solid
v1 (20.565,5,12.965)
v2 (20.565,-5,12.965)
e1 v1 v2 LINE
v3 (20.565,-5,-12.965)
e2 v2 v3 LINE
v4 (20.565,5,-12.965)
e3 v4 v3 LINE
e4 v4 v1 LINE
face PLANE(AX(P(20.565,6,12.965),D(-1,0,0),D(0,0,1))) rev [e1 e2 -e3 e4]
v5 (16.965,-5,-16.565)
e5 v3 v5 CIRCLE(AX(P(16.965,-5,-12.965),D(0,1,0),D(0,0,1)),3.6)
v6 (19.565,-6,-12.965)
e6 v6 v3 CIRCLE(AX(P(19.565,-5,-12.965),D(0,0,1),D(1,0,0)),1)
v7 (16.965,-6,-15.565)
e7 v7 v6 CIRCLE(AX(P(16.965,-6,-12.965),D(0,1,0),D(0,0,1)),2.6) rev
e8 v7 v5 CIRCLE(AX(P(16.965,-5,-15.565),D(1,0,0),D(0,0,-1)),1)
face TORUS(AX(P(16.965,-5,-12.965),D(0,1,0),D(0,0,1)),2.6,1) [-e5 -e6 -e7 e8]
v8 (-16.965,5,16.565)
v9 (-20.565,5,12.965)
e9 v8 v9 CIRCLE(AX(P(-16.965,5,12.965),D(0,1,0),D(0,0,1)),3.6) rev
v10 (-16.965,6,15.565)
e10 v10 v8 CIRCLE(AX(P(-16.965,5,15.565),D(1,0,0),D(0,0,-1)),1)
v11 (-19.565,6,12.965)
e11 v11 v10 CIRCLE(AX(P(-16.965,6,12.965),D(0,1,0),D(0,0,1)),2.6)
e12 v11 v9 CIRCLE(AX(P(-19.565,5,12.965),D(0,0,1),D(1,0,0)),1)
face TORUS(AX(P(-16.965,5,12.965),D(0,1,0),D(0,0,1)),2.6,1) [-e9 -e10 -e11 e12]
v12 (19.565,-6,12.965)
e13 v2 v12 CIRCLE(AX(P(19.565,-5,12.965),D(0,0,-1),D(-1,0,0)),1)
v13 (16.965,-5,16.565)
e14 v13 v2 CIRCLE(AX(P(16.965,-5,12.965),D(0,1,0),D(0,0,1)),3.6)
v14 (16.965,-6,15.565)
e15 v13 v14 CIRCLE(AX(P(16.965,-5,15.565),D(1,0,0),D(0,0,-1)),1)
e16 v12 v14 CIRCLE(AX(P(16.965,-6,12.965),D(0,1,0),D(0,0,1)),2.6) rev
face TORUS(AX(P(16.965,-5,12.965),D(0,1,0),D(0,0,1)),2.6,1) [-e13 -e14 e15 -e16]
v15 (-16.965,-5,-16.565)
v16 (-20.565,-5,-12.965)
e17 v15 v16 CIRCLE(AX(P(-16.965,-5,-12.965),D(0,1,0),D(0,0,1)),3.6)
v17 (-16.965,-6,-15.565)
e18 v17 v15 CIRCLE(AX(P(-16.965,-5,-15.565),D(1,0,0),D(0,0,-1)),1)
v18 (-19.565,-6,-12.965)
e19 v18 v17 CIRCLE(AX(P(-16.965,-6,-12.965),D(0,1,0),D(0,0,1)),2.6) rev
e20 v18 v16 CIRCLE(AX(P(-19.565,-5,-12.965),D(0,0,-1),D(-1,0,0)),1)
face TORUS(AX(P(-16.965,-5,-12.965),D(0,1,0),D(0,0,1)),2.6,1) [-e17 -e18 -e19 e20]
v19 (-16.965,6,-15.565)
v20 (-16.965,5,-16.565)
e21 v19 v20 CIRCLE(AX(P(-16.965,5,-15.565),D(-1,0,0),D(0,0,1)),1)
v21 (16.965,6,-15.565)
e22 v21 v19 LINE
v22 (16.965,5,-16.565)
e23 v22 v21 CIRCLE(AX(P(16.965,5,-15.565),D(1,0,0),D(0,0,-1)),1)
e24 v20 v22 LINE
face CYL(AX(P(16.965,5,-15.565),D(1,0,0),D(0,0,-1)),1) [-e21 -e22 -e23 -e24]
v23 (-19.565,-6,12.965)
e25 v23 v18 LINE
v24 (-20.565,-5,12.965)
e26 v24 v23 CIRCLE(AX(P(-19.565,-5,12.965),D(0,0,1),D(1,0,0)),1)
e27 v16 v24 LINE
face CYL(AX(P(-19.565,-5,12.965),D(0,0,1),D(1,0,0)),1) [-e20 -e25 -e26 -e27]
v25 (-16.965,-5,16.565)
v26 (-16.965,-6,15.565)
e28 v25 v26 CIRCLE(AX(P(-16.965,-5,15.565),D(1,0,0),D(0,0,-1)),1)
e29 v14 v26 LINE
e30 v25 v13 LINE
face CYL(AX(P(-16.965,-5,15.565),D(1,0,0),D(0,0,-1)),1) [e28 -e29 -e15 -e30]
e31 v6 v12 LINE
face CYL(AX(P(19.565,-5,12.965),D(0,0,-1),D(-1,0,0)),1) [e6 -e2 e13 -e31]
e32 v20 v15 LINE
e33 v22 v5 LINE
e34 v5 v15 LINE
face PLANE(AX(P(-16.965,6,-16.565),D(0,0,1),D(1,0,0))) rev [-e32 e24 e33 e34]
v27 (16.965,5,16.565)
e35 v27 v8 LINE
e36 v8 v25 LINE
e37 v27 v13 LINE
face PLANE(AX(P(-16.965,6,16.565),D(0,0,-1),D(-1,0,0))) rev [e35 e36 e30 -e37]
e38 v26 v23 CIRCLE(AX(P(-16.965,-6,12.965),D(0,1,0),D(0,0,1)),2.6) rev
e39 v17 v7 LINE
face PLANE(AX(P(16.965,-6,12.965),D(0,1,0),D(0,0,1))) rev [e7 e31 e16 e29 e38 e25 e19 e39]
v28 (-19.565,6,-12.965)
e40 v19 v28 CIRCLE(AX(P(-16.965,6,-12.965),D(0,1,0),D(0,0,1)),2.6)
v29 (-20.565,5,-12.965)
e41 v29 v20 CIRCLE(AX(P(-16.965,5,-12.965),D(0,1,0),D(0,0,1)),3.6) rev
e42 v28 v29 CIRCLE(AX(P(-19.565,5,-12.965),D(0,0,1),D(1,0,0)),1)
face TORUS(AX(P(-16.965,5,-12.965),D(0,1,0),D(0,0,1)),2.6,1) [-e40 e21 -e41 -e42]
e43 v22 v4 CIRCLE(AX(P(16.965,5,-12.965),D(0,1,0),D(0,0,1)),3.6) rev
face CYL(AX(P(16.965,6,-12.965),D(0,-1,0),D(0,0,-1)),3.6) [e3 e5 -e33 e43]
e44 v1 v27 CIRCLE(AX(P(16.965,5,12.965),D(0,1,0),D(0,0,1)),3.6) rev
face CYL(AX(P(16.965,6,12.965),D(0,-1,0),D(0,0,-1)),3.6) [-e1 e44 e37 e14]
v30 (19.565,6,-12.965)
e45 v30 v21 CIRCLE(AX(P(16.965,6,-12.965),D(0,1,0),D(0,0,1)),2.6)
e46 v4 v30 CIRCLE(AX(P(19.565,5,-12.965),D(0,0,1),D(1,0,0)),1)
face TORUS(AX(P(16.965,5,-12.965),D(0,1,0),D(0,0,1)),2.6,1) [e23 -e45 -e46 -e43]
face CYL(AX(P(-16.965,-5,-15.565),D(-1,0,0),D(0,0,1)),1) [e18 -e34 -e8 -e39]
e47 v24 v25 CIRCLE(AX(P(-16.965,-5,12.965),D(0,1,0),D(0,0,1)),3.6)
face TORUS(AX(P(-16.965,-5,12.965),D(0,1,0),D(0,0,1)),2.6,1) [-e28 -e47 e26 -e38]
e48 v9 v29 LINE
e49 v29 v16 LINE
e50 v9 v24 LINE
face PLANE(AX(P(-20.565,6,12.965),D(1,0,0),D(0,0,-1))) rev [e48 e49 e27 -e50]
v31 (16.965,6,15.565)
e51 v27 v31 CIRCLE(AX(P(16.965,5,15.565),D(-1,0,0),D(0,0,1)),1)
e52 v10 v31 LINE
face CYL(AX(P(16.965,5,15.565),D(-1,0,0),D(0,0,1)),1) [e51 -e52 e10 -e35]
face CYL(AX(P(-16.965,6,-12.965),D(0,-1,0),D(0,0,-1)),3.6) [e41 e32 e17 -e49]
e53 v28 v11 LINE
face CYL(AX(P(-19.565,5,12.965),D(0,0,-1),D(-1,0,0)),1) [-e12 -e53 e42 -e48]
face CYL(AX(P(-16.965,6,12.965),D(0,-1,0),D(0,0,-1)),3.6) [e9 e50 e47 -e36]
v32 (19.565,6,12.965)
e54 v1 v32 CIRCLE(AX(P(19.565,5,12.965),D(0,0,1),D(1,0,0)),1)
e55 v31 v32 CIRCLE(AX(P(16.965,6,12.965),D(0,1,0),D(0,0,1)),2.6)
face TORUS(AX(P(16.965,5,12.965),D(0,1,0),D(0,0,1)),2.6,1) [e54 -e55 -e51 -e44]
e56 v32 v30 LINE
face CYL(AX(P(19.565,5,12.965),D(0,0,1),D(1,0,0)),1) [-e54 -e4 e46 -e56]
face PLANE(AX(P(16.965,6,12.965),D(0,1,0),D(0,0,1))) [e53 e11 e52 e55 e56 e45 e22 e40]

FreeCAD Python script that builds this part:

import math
import FreeCAD as App
import Part
import Sketcher
Q = App.Units.Quantity


def edges_at(feature, points):
    """Names of the edges that pass closest to the given points."""
    edges = feature.Shape.Edges
    near = lambda p: min(range(len(edges)), key=lambda i: edges[i].distToShape(Part.Vertex(*p))[0])
    return sorted({f"Edge{near(p) + 1}" for p in points})

doc = App.newDocument("Part")
body = doc.addObject("PartDesign::Body", "Body")

# Sketch on XZ plane
sketch1 = body.newObject("Sketcher::SketchObject", "Sketch")
sketch1.AttachmentSupport = (doc.getObject("XZ_Plane"), [""])
sketch1.MapMode = "FlatFace"
sketch1.addGeometry([
    Part.LineSegment(App.Vector(-16.965, 16.565, 0), App.Vector(16.965, 16.565, 0)),  # 0
    Part.ArcOfCircle(Part.Circle(App.Vector(16.965, 12.965, 0), App.Vector(0, 0, 1), 3.6), math.radians(0), math.radians(90)),  # 1
    Part.LineSegment(App.Vector(20.565, 12.965, 0), App.Vector(20.565, -12.965, 0)),  # 2
    Part.ArcOfCircle(Part.Circle(App.Vector(16.965, -12.965, 0), App.Vector(0, 0, 1), 3.6), math.radians(-90), math.radians(0)),  # 3
    Part.LineSegment(App.Vector(16.965, -16.565, 0), App.Vector(-16.965, -16.565, 0)),  # 4
    Part.ArcOfCircle(Part.Circle(App.Vector(-16.965, -12.965, 0), App.Vector(0, 0, 1), 3.6), math.radians(-180), math.radians(-90)),  # 5
    Part.LineSegment(App.Vector(-20.565, -12.965, 0), App.Vector(-20.565, 12.965, 0)),  # 6
    Part.ArcOfCircle(Part.Circle(App.Vector(-16.965, 12.965, 0), App.Vector(0, 0, 1), 3.6), math.radians(90), math.radians(180)),  # 7
], False)
sketch1.addConstraint([
    Sketcher.Constraint("Tangent", 0, 2, 1, 2),
    Sketcher.Constraint("Tangent", 1, 1, 2, 1),
    Sketcher.Constraint("Tangent", 2, 2, 3, 2),
    Sketcher.Constraint("Tangent", 3, 1, 4, 1),
    Sketcher.Constraint("Tangent", 4, 2, 5, 2),
    Sketcher.Constraint("Tangent", 5, 1, 6, 1),
    Sketcher.Constraint("Tangent", 6, 2, 7, 2),
    Sketcher.Constraint("Tangent", 7, 1, 0, 1),
    Sketcher.Constraint("Horizontal", 0),
    Sketcher.Constraint("Vertical", 2),
    Sketcher.Constraint("Horizontal", 4),
    Sketcher.Constraint("Vertical", 6),
    Sketcher.Constraint("Equal", 1, 3),
    Sketcher.Constraint("Equal", 3, 5),
    Sketcher.Constraint("Equal", 5, 7),
    Sketcher.Constraint("Symmetric", 1, 3, 5, 3, -1, 1),
    Sketcher.Constraint("Radius", 1, Q("3.6 mm")),
    Sketcher.Constraint("DistanceX", 0, 1, 0, 2, Q("33.93 mm")),
    Sketcher.Constraint("DistanceY", 2, 2, 2, 1, Q("25.93 mm")),
])
pad1 = body.newObject("PartDesign::Pad", "Pad")
pad1.Profile = sketch1
pad1.Length = 12
pad1.Midplane = True
doc.recompute()

fillet = body.newObject("PartDesign::Fillet", "Fillet")
fillet.Base = (pad1, edges_at(pad1, [
    (0, -6, -16.565),
    (19.511, -6, -15.511),
    (20.565, -6, 0),
    (19.511, -6, 15.511),
    (19.511, 6, -15.511),
    (0, 6, -16.565),
    (-19.511, 6, -15.511),
    (-20.565, 6, 0),
    (-19.511, 6, 15.511),
    (0, 6, 16.565),
    (19.511, 6, 15.511),
    (0, -6, 16.565),
    (20.565, 6, 0),
    (-19.511, -6, 15.511),
    (-20.565, -6, 0),
    (-19.511, -6, -15.511),
]))
fillet.Radius = 1

doc.recompute()
